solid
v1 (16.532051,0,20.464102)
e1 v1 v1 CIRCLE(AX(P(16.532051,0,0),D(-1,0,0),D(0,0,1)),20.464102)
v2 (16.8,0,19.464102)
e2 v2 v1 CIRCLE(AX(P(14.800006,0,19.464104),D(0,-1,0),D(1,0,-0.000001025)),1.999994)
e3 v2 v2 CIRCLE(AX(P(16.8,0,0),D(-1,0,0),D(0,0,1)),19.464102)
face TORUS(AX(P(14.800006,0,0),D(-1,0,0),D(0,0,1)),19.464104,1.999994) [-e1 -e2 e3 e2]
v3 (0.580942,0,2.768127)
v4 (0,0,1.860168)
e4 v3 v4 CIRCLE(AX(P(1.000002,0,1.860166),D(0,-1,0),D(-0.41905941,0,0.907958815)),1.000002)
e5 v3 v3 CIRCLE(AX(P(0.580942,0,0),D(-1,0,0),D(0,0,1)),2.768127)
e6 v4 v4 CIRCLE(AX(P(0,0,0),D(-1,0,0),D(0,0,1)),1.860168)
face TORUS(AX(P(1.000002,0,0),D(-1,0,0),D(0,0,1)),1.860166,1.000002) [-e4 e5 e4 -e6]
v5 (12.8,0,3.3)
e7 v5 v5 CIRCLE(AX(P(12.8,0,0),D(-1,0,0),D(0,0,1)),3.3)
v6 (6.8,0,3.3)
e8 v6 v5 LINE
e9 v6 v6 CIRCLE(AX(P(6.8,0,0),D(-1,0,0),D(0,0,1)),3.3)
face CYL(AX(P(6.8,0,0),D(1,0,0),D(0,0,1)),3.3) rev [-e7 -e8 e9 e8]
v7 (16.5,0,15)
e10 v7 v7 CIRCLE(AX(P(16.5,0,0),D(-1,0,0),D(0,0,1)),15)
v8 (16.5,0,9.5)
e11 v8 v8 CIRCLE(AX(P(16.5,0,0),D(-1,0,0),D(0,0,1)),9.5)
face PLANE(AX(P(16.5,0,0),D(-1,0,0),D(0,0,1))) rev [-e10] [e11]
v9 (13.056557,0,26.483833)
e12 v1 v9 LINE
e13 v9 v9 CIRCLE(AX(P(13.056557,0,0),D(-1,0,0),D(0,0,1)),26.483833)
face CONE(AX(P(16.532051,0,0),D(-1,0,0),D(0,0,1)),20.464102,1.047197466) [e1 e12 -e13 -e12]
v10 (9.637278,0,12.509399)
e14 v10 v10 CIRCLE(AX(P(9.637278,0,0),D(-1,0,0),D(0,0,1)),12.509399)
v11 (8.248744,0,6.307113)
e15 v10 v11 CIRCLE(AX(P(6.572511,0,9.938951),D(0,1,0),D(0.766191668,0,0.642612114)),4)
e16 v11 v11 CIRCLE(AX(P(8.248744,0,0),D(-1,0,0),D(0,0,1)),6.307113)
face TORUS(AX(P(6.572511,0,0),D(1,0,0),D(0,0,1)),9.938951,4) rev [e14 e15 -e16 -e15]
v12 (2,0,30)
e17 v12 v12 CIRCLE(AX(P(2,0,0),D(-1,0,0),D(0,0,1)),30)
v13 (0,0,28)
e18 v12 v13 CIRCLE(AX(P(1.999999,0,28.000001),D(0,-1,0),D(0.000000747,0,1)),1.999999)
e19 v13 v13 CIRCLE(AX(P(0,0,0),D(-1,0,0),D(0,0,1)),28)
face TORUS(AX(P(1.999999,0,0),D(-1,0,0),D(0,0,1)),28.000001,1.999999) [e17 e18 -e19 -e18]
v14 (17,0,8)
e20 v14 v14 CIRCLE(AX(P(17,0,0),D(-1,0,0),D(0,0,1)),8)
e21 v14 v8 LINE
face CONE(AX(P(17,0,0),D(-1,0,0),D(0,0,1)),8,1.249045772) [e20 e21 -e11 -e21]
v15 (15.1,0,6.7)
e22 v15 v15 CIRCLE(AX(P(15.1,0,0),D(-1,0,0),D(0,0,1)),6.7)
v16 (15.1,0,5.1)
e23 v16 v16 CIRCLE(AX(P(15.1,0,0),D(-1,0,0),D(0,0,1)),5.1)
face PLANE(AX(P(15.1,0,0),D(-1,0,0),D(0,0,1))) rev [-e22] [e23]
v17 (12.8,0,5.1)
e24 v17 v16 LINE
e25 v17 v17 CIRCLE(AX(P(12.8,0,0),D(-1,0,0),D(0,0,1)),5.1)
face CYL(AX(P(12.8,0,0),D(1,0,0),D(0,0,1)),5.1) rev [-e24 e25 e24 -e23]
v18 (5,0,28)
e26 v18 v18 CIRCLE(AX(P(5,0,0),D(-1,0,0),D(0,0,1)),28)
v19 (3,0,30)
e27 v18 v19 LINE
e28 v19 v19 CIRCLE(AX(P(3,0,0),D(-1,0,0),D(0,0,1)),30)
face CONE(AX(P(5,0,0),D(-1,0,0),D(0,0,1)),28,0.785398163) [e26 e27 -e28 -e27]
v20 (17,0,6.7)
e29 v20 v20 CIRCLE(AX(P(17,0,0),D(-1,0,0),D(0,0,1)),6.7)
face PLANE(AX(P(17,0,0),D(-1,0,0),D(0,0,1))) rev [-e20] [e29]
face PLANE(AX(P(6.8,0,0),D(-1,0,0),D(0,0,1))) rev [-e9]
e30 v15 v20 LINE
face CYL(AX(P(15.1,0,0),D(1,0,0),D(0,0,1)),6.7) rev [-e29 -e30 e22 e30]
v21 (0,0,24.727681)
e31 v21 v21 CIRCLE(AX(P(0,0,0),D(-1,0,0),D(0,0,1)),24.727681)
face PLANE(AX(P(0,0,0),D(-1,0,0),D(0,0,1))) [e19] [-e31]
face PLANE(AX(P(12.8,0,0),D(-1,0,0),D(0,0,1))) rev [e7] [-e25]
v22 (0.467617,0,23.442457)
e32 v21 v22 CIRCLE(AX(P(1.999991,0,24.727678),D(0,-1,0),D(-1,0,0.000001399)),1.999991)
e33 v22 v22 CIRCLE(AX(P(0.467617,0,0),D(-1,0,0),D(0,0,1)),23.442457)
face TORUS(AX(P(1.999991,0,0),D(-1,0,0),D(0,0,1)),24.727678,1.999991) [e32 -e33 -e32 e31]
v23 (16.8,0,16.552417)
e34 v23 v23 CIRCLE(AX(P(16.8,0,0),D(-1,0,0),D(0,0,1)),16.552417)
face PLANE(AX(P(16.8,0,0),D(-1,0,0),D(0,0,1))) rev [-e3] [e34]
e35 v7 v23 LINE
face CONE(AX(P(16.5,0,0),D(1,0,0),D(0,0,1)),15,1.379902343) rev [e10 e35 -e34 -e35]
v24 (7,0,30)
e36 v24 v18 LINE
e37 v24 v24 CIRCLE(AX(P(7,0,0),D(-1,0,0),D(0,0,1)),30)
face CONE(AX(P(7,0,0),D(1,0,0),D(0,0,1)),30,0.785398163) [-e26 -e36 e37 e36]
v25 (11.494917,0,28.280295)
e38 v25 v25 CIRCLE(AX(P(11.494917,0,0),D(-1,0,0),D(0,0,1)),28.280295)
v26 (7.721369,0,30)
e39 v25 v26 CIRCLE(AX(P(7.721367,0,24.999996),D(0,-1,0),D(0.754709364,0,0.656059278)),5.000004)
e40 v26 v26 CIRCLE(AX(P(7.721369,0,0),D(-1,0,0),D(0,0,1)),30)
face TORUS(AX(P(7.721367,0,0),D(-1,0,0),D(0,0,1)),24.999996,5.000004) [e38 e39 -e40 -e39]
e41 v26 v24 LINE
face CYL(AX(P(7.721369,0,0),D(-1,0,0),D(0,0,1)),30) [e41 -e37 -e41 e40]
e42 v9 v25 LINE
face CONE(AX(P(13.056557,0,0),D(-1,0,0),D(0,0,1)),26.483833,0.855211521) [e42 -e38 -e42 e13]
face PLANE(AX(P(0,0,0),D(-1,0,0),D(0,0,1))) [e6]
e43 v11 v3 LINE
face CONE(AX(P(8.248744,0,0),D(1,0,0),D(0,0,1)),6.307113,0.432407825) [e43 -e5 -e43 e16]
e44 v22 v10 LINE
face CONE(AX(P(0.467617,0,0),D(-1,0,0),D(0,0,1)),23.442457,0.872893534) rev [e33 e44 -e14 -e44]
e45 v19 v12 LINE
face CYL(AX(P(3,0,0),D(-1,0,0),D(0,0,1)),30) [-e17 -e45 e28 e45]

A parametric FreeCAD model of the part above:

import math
import FreeCAD as App
import Part
import Sketcher
Q = App.Units.Quantity

doc = App.newDocument("Part")
body = doc.addObject("PartDesign::Body", "Body")

# Sketch on XZ plane
sketch1 = doc.addObject("Sketcher::SketchObject", "Sketch")
body.addObject(sketch1)
sketch1.AttachmentSupport = (doc.XZ_Plane, [""])
sketch1.MapMode = "FlatFace"
sketch1.addGeometry(Part.LineSegment(App.Vector(3, 30, 0), App.Vector(2, 30, 0)), False)
sketch1.addGeometry(Part.ArcOfCircle(Part.Circle(App.Vector(1.999999, 28.000001, 0), App.Vector(0, 0, 1), 1.999999), math.radians(89.999957), math.radians(180.000043)), False)
sketch1.addGeometry(Part.LineSegment(App.Vector(0, 28, 0), App.Vector(0, 24.727681, 0)), False)
sketch1.addGeometry(Part.ArcOfCircle(Part.Circle(App.Vector(1.999991, 24.727678, 0), App.Vector(0, 0, 1), 1.999991), math.radians(179.99992), math.radians(219.986988)), False)
sketch1.addGeometry(Part.LineSegment(App.Vector(0.467617, 23.442457, 0), App.Vector(9.637278, 12.509399, 0)), False)
sketch1.addGeometry(Part.ArcOfCircle(Part.Circle(App.Vector(6.572511, 9.938951, 0), App.Vector(0, 0, 1), 4), math.radians(-65.22486), math.radians(39.986875)), False)
sketch1.addGeometry(Part.LineSegment(App.Vector(8.248744, 6.307113, 0), App.Vector(0.580942, 2.768127, 0)), False)
sketch1.addGeometry(Part.ArcOfCircle(Part.Circle(App.Vector(1.000002, 1.860166, 0), App.Vector(0, 0, 1), 1.000002), math.radians(114.775218), math.radians(179.999884)), False)
sketch1.addGeometry(Part.LineSegment(App.Vector(0, 1.860168, 0), App.Vector(0, 0, 0)), False)
sketch1.addGeometry(Part.LineSegment(App.Vector(0, 0, 0), App.Vector(6.8, 0, 0)), False)
sketch1.addGeometry(Part.LineSegment(App.Vector(6.8, 0, 0), App.Vector(6.8, 3.3, 0)), False)
sketch1.addGeometry(Part.LineSegment(App.Vector(6.8, 3.3, 0), App.Vector(12.8, 3.3, 0)), False)
sketch1.addGeometry(Part.LineSegment(App.Vector(12.8, 3.3, 0), App.Vector(12.8, 5.1, 0)), False)
sketch1.addGeometry(Part.LineSegment(App.Vector(12.8, 5.1, 0), App.Vector(15.1, 5.1, 0)), False)
sketch1.addGeometry(Part.LineSegment(App.Vector(15.1, 5.1, 0), App.Vector(15.1, 6.7, 0)), False)
sketch1.addGeometry(Part.LineSegment(App.Vector(15.1, 6.7, 0), App.Vector(17, 6.7, 0)), False)
sketch1.addGeometry(Part.LineSegment(App.Vector(17, 6.7, 0), App.Vector(17, 8, 0)), False)
sketch1.addGeometry(Part.LineSegment(App.Vector(17, 8, 0), App.Vector(16.5, 9.5, 0)), False)
sketch1.addGeometry(Part.LineSegment(App.Vector(16.5, 9.5, 0), App.Vector(16.5, 15, 0)), False)
sketch1.addGeometry(Part.LineSegment(App.Vector(16.5, 15, 0), App.Vector(16.8, 16.552417, 0)), False)
sketch1.addGeometry(Part.LineSegment(App.Vector(16.8, 16.552417, 0), App.Vector(16.8, 19.464102, 0)), False)
sketch1.addGeometry(Part.ArcOfCircle(Part.Circle(App.Vector(14.800006, 19.464104, 0), App.Vector(0, 0, 1), 1.999994), math.radians(-0.000059), math.radians(30.000038)), False)
sketch1.addGeometry(Part.LineSegment(App.Vector(16.532051, 20.464102, 0), App.Vector(13.056557, 26.483833, 0)), False)
sketch1.addGeometry(Part.LineSegment(App.Vector(13.056557, 26.483833, 0), App.Vector(11.494917, 28.280295, 0)), False)
sketch1.addGeometry(Part.ArcOfCircle(Part.Circle(App.Vector(7.721367, 24.999996, 0), App.Vector(0, 0, 1), 5.000004), math.radians(41.000019), math.radians(89.999979)), False)
sketch1.addGeometry(Part.LineSegment(App.Vector(7.721369, 30, 0), App.Vector(7, 30, 0)), False)
sketch1.addGeometry(Part.LineSegment(App.Vector(7, 30, 0), App.Vector(5, 28, 0)), False)
sketch1.addGeometry(Part.LineSegment(App.Vector(5, 28, 0), App.Vector(3, 30, 0)), False)
sketch1.addConstraint(Sketcher.Constraint("Tangent", 0, 2, 1, 1))
sketch1.addConstraint(Sketcher.Constraint("Tangent", 1, 2, 2, 1))
sketch1.addConstraint(Sketcher.Constraint("Tangent", 2, 2, 3, 1))
sketch1.addConstraint(Sketcher.Constraint("Tangent", 3, 2, 4, 1))
sketch1.addConstraint(Sketcher.Constraint("Tangent", 4, 2, 5, 2))
sketch1.addConstraint(Sketcher.Constraint("Tangent", 5, 1, 6, 1))
sketch1.addConstraint(Sketcher.Constraint("Tangent", 6, 2, 7, 1))
sketch1.addConstraint(Sketcher.Constraint("Coincident", 7, 2, 8, 1))
sketch1.addConstraint(Sketcher.Constraint("Coincident", 8, 2, 9, 1))
sketch1.addConstraint(Sketcher.Constraint("Coincident", 9, 2, 10, 1))
sketch1.addConstraint(Sketcher.Constraint("Coincident", 10, 2, 11, 1))
sketch1.addConstraint(Sketcher.Constraint("Coincident", 11, 2, 12, 1))
sketch1.addConstraint(Sketcher.Constraint("Coincident", 12, 2, 13, 1))
sketch1.addConstraint(Sketcher.Constraint("Coincident", 13, 2, 14, 1))
sketch1.addConstraint(Sketcher.Constraint("Coincident", 14, 2, 15, 1))
sketch1.addConstraint(Sketcher.Constraint("Coincident", 15, 2, 16, 1))
sketch1.addConstraint(Sketcher.Constraint("Coincident", 16, 2, 17, 1))
sketch1.addConstraint(Sketcher.Constraint("Coincident", 17, 2, 18, 1))
sketch1.addConstraint(Sketcher.Constraint("Coincident", 18, 2, 19, 1))
sketch1.addConstraint(Sketcher.Constraint("Coincident", 19, 2, 20, 1))
sketch1.addConstraint(Sketcher.Constraint("Tangent", 20, 2, 21, 1))
sketch1.addConstraint(Sketcher.Constraint("Tangent", 21, 2, 22, 1))
sketch1.addConstraint(Sketcher.Constraint("Coincident", 22, 2, 23, 1))
sketch1.addConstraint(Sketcher.Constraint("Tangent", 23, 2, 24, 1))
sketch1.addConstraint(Sketcher.Constraint("Tangent", 24, 2, 25, 1))
sketch1.addConstraint(Sketcher.Constraint("Coincident", 25, 2, 26, 1))
sketch1.addConstraint(Sketcher.Constraint("Coincident", 26, 2, 27, 1))
sketch1.addConstraint(Sketcher.Constraint("Coincident", 27, 2, 0, 1))
sketch1.addConstraint(Sketcher.Constraint("Horizontal", 0))
sketch1.addConstraint(Sketcher.Constraint("Vertical", 2))
sketch1.addConstraint(Sketcher.Constraint("Vertical", 8))
sketch1.addConstraint(Sketcher.Constraint("Horizontal", 9))
sketch1.addConstraint(Sketcher.Constraint("Vertical", 10))
sketch1.addConstraint(Sketcher.Constraint("Horizontal", 11))
sketch1.addConstraint(Sketcher.Constraint("Vertical", 12))
sketch1.addConstraint(Sketcher.Constraint("Horizontal", 13))
sketch1.addConstraint(Sketcher.Constraint("Vertical", 14))
sketch1.addConstraint(Sketcher.Constraint("Horizontal", 15))
sketch1.addConstraint(Sketcher.Constraint("Vertical", 16))
sketch1.addConstraint(Sketcher.Constraint("Vertical", 18))
sketch1.addConstraint(Sketcher.Constraint("Vertical", 20))
sketch1.addConstraint(Sketcher.Constraint("Horizontal", 25))
sketch1.addConstraint(Sketcher.Constraint("Coincident", 8, 2, -1, 1))
sketch1.addConstraint(Sketcher.Constraint("PointOnObject", 1, 2, -2))
sketch1.addConstraint(Sketcher.Constraint("Perpendicular", 26, 27))
sketch1.addConstraint(Sketcher.Constraint("Horizontal", 0, 2, 24, 2))
sketch1.addConstraint(Sketcher.Constraint("Horizontal", 1, 2, 26, 2))
sketch1.addConstraint(Sketcher.Constraint("Equal", 17, 19))
sketch1.addConstraint(Sketcher.Constraint("Equal", 26, 27))
sketch1.addConstraint(Sketcher.Constraint("Radius", 1, Q("1.999999 mm")))
sketch1.addConstraint(Sketcher.Constraint("Radius", 5, Q("4 mm")))
sketch1.addConstraint(Sketcher.Constraint("DistanceX", 0, 2, 0, 1, Q("1 mm")))
sketch1.addConstraint(Sketcher.Constraint("DistanceX", 11, 1, 11, 2, Q("6 mm")))
sketch1.addConstraint(Sketcher.Constraint("Angle", 22, Q("120.000005 deg")))
sketch1.addConstraint(Sketcher.Constraint("Angle", 23, Q("130.999989 deg")))
sketch1.addConstraint(Sketcher.Constraint("DistanceX", 9, 1, 9, 2, Q("6.8 mm")))
sketch1.addConstraint(Sketcher.Constraint("DistanceX", 13, 1, 13, 2, Q("2.3 mm")))
sketch1.addConstraint(Sketcher.Constraint("DistanceX", 15, 1, 15, 2, Q("1.9 mm")))
sketch1.addConstraint(Sketcher.Constraint("DistanceY", 10, 1, 10, 2, Q("3.3 mm")))
sketch1.addConstraint(Sketcher.Constraint("DistanceY", 12, 1, 12, 2, Q("1.8 mm")))
sketch1.addConstraint(Sketcher.Constraint("DistanceY", 14, 1, 14, 2, Q("1.6 mm")))
sketch1.addConstraint(Sketcher.Constraint("DistanceY", 16, 1, 16, 2, Q("1.3 mm")))
sketch1.addConstraint(Sketcher.Constraint("DistanceY", 18, 1, 18, 2, Q("5.5 mm")))
sketch1.addConstraint(Sketcher.Constraint("DistanceY", -1, 1, 1, 3, Q("28.000001 mm")))
sketch1.addConstraint(Sketcher.Constraint("DistanceY", -1, 1, 18, 2, Q("15 mm")))
sketch1.addConstraint(Sketcher.Constraint("DistanceY", 20, 2, 21, 2, Q("1 mm")))
sketch1.addConstraint(Sketcher.Constraint("DistanceX", -1, 1, 17, 2, Q("16.5 mm")))
sketch1.addConstraint(Sketcher.Constraint("DistanceX", -1, 1, 19, 2, Q("16.8 mm")))
sketch1.addConstraint(Sketcher.Constraint("Radius", 3, Q("1.999991 mm")))
sketch1.addConstraint(Sketcher.Constraint("Radius", 7, Q("1.000002 mm")))
sketch1.addConstraint(Sketcher.Constraint("Radius", 24, Q("5.000004 mm")))
sketch1.addConstraint(Sketcher.Constraint("DistanceX", 25, 2, 25, 1, Q("0.721369 mm")))
sketch1.addConstraint(Sketcher.Constraint("DistanceY", 2, 2, 2, 1, Q("3.272319 mm")))
sketch1.addConstraint(Sketcher.Constraint("DistanceY", -1, 1, 4, 2, Q("12.509399 mm")))
sketch1.addConstraint(Sketcher.Constraint("DistanceY", 8, 2, 8, 1, Q("1.860168 mm")))
sketch1.addConstraint(Sketcher.Constraint("DistanceY", 20, 1, 20, 2, Q("2.911685 mm")))
sketch1.addConstraint(Sketcher.Constraint("DistanceX", -1, 1, 5, 3, Q("6.572511 mm")))
sketch1.addConstraint(Sketcher.Constraint("DistanceX", -1, 1, 6, 2, Q("0.580942 mm")))
revolution = doc.addObject("PartDesign::Revolution", "Revolution")
body.addObject(revolution)
revolution.Profile = sketch1
revolution.ReferenceAxis = (sketch1, ["H_Axis"])
revolution.Angle = 360

doc.recompute()
